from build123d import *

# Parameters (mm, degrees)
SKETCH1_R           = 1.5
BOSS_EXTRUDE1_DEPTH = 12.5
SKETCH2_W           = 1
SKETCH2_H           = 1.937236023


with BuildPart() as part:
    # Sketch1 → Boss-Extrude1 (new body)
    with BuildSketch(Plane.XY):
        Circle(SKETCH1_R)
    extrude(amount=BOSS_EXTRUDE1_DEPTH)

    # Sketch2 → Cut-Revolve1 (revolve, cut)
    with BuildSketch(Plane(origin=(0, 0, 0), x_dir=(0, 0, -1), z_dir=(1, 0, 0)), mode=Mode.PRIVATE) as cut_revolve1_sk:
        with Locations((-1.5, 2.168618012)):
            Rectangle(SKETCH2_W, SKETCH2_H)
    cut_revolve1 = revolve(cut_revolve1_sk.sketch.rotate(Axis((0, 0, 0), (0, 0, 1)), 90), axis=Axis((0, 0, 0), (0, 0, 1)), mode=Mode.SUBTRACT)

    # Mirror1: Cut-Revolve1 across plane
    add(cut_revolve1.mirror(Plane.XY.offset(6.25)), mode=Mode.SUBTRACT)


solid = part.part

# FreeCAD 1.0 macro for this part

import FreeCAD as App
import Part
import Sketcher

V = App.Vector


def add_polygon(sketch, points):
    """Adds a closed chain of lines whose ends are joined by coincident constraints."""
    first, n = sketch.GeometryCount, len(points)
    for a, b in zip(points, points[1:] + points[:1]):
        sketch.addGeometry(Part.LineSegment(App.Vector(*a, 0), App.Vector(*b, 0)), False)
    for i in range(n):
        sketch.addConstraint(Sketcher.Constraint("Coincident", first + i, 2, first + (i + 1) % n, 1))

doc = App.newDocument("Part")
body = doc.addObject("PartDesign::Body", "Body")

# Sketch on XY plane
sketch1 = doc.addObject("Sketcher::SketchObject", "Sketch")
body.addObject(sketch1)
sketch1.AttachmentSupport = (doc.XY_Plane, [""])
sketch1.MapMode = "FlatFace"
sketch1.addGeometry(Part.Circle(V(0, 0, 0), V(0, 0, 1), 1.5), False)
sketch1.addConstraint(Sketcher.Constraint("Coincident", 0, 3, -1, 1))
sketch1.addConstraint(Sketcher.Constraint("Diameter", 0, 3.0))
pad1 = doc.addObject("PartDesign::Pad", "Pad")
body.addObject(pad1)
pad1.Profile = sketch1
pad1.Length = 12.5

# Sketch on YZ plane
sketch2 = doc.addObject("Sketcher::SketchObject", "Sketch001")
body.addObject(sketch2)
sketch2.AttachmentSupport = (doc.YZ_Plane, [""])
sketch2.MapMode = "FlatFace"
add_polygon(sketch2, [(3.1, 2), (1.2, 2), (1.2, 1), (3.1, 1)])  # lines 0-3
sketch2.addConstraint(Sketcher.Constraint("Horizontal", 0))
sketch2.addConstraint(Sketcher.Constraint("Vertical", 1))
sketch2.addConstraint(Sketcher.Constraint("Horizontal", 2))
sketch2.addConstraint(Sketcher.Constraint("Vertical", 3))
sketch2.addConstraint(Sketcher.Constraint("DistanceY", 1, 2, 1, 1, 1.0))
sketch2.addConstraint(Sketcher.Constraint("DistanceY", -1, 1, 0, 2, 2.0))
sketch2.addConstraint(Sketcher.Constraint("DistanceX", -1, 1, 0, 2, 1.2))
sketch2.addConstraint(Sketcher.Constraint("DistanceX", 0, 2, 0, 1, 1.937236))
groove = doc.addObject("PartDesign::Groove", "Groove")
body.addObject(groove)
groove.Profile = sketch2
groove.ReferenceAxis = (sketch2, ["V_Axis"])
groove.Angle = 360
doc.recompute()

datumplane = doc.addObject("PartDesign::Plane", "DatumPlane")
body.addObject(datumplane)
datumplane.AttachmentSupport = (doc.XY_Plane, [""])
datumplane.MapMode = "FlatFace"
datumplane.AttachmentOffset = App.Placement(V(0, 0, 6.25), App.Rotation())
mirrored = doc.addObject("PartDesign::Mirrored", "Mirrored")
body.addObject(mirrored)
mirrored.Originals = [groove]
mirrored.MirrorPlane = (datumplane, [""])
body.Tip = mirrored

doc.recompute()
